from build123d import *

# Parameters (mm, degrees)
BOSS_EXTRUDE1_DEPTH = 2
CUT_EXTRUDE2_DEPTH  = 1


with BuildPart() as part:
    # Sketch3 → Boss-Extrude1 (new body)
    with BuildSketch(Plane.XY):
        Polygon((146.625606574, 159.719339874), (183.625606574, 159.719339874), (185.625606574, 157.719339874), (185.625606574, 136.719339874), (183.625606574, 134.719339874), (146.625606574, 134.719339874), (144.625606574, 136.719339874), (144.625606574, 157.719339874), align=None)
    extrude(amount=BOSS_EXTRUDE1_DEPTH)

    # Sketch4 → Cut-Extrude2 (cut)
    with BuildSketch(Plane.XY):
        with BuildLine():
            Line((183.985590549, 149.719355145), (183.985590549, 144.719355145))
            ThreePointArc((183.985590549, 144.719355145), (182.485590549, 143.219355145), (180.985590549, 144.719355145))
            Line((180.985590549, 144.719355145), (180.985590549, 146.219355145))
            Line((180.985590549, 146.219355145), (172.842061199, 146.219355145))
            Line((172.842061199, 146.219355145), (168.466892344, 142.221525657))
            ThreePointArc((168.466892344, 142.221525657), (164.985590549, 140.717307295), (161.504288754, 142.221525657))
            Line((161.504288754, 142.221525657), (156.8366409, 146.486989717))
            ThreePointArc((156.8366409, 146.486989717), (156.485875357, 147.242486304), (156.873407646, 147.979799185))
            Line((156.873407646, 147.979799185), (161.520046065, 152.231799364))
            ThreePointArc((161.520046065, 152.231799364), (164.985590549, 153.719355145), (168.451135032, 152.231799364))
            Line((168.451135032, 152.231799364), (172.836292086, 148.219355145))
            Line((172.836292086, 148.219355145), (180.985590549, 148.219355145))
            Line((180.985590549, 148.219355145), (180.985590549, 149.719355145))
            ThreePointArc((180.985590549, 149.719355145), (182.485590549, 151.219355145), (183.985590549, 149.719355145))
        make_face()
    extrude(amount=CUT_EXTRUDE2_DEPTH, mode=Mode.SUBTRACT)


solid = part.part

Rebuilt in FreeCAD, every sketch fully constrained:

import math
import FreeCAD as App
import Part
import Sketcher
Q = App.Units.Quantity

doc = App.newDocument("Part")
body = doc.addObject("PartDesign::Body", "Body")

# Sketch on XY plane
sketch1 = body.newObject("Sketcher::SketchObject", "Sketch")
sketch1.AttachmentSupport = (doc.getObject("XY_Plane"), [""])
sketch1.MapMode = "FlatFace"
sketch1.addGeometry(Part.LineSegment(App.Vector(183.6, 159.7, 0), App.Vector(146.6, 159.7, 0)), False)
sketch1.addGeometry(Part.LineSegment(App.Vector(146.6, 159.7, 0), App.Vector(144.6, 157.7, 0)), False)
sketch1.addGeometry(Part.LineSegment(App.Vector(144.6, 157.7, 0), App.Vector(144.6, 136.7, 0)), False)
sketch1.addGeometry(Part.LineSegment(App.Vector(144.6, 136.7, 0), App.Vector(146.6, 134.7, 0)), False)
sketch1.addGeometry(Part.LineSegment(App.Vector(146.6, 134.7, 0), App.Vector(183.6, 134.7, 0)), False)
sketch1.addGeometry(Part.LineSegment(App.Vector(183.6, 134.7, 0), App.Vector(185.6, 136.7, 0)), False)
sketch1.addGeometry(Part.LineSegment(App.Vector(185.6, 136.7, 0), App.Vector(185.6, 157.7, 0)), False)
sketch1.addGeometry(Part.LineSegment(App.Vector(185.6, 157.7, 0), App.Vector(183.6, 159.7, 0)), False)
sketch1.addConstraint(Sketcher.Constraint("Coincident", 0, 2, 1, 1))
sketch1.addConstraint(Sketcher.Constraint("Coincident", 1, 2, 2, 1))
sketch1.addConstraint(Sketcher.Constraint("Coincident", 2, 2, 3, 1))
sketch1.addConstraint(Sketcher.Constraint("Coincident", 3, 2, 4, 1))
sketch1.addConstraint(Sketcher.Constraint("Coincident", 4, 2, 5, 1))
sketch1.addConstraint(Sketcher.Constraint("Coincident", 5, 2, 6, 1))
sketch1.addConstraint(Sketcher.Constraint("Coincident", 6, 2, 7, 1))
sketch1.addConstraint(Sketcher.Constraint("Coincident", 7, 2, 0, 1))
sketch1.addConstraint(Sketcher.Constraint("Horizontal", 0))
sketch1.addConstraint(Sketcher.Constraint("Vertical", 2))
sketch1.addConstraint(Sketcher.Constraint("Horizontal", 4))
sketch1.addConstraint(Sketcher.Constraint("Vertical", 6))
sketch1.addConstraint(Sketcher.Constraint("Perpendicular", 1, 3))
sketch1.addConstraint(Sketcher.Constraint("Perpendicular", 3, 5))
sketch1.addConstraint(Sketcher.Constraint("Perpendicular", 5, 7))
sketch1.addConstraint(Sketcher.Constraint("Horizontal", 2, 2, 5, 2))
sketch1.addConstraint(Sketcher.Constraint("Horizontal", 1, 2, 6, 2))
sketch1.addConstraint(Sketcher.Constraint("Vertical", 0, 2, 3, 2))
sketch1.addConstraint(Sketcher.Constraint("Vertical", 4, 2, 7, 2))
sketch1.addConstraint(Sketcher.Constraint("DistanceX", 0, 2, 0, 1, Q("37 mm")))
sketch1.addConstraint(Sketcher.Constraint("DistanceY", 2, 2, 2, 1, Q("21 mm")))
sketch1.addConstraint(Sketcher.Constraint("DistanceX", 1, 2, 0, 2, Q("2 mm")))
sketch1.addConstraint(Sketcher.Constraint("DistanceY", -1, 1, 0, 2, Q("159.71934 mm")))
sketch1.addConstraint(Sketcher.Constraint("DistanceX", -1, 1, 0, 2, Q("146.625607 mm")))
pad1 = body.newObject("PartDesign::Pad", "Pad")
pad1.Profile = sketch1
pad1.Length = 2

# Sketch on XY plane
sketch2 = body.newObject("Sketcher::SketchObject", "Sketch001")
sketch2.AttachmentSupport = (doc.getObject("XY_Plane"), [""])
sketch2.MapMode = "FlatFace"
sketch2.addGeometry(Part.LineSegment(App.Vector(184, 144.7, 0), App.Vector(184, 149.7, 0)), False)
sketch2.addGeometry(Part.ArcOfCircle(Part.Circle(App.Vector(182.5, 149.7, 0), App.Vector(0, 0, 1), 1.5), math.radians(0), math.radians(180)), False)
sketch2.addGeometry(Part.LineSegment(App.Vector(181, 149.7, 0), App.Vector(181, 148.2, 0)), False)
sketch2.addGeometry(Part.LineSegment(App.Vector(181, 148.2, 0), App.Vector(172.8, 148.2, 0)), False)
sketch2.addGeometry(Part.LineSegment(App.Vector(172.8, 148.2, 0), App.Vector(168.5, 152.2, 0)), False)
sketch2.addGeometry(Part.ArcOfCircle(Part.Circle(App.Vector(165, 148.9, 0), App.Vector(0, 0, 1), 4.8), math.radians(44), math.radians(136)), False)
sketch2.addGeometry(Part.LineSegment(App.Vector(161.5, 152.2, 0), App.Vector(156.9, 148, 0)), False)
sketch2.addGeometry(Part.ArcOfCircle(Part.Circle(App.Vector(157.4, 147.2, 0), App.Vector(0, 0, 1), 0.9), math.radians(126), math.radians(231)), False)
sketch2.addGeometry(Part.LineSegment(App.Vector(156.8, 146.5, 0), App.Vector(161.5, 142.2, 0)), False)
sketch2.addGeometry(Part.ArcOfCircle(Part.Circle(App.Vector(165, 145.5, 0), App.Vector(0, 0, 1), 4.8), math.radians(-137), math.radians(-43)), False)
sketch2.addGeometry(Part.LineSegment(App.Vector(168.5, 142.2, 0), App.Vector(172.8, 146.2, 0)), False)
sketch2.addGeometry(Part.LineSegment(App.Vector(172.8, 146.2, 0), App.Vector(181, 146.2, 0)), False)
sketch2.addGeometry(Part.LineSegment(App.Vector(181, 146.2, 0), App.Vector(181, 144.7, 0)), False)
sketch2.addGeometry(Part.ArcOfCircle(Part.Circle(App.Vector(182.5, 144.7, 0), App.Vector(0, 0, 1), 1.5), math.radians(180), math.radians(360)), False)
sketch2.addConstraint(Sketcher.Constraint("Tangent", 0, 2, 1, 1))
sketch2.addConstraint(Sketcher.Constraint("Tangent", 1, 2, 2, 1))
sketch2.addConstraint(Sketcher.Constraint("Coincident", 2, 2, 3, 1))
sketch2.addConstraint(Sketcher.Constraint("Coincident", 3, 2, 4, 1))
sketch2.addConstraint(Sketcher.Constraint("Coincident", 4, 2, 5, 1))
sketch2.addConstraint(Sketcher.Constraint("Coincident", 5, 2, 6, 1))
sketch2.addConstraint(Sketcher.Constraint("Coincident", 6, 2, 7, 1))
sketch2.addConstraint(Sketcher.Constraint("Coincident", 7, 2, 8, 1))
sketch2.addConstraint(Sketcher.Constraint("Coincident", 8, 2, 9, 1))
sketch2.addConstraint(Sketcher.Constraint("Coincident", 9, 2, 10, 1))
sketch2.addConstraint(Sketcher.Constraint("Coincident", 10, 2, 11, 1))
sketch2.addConstraint(Sketcher.Constraint("Coincident", 11, 2, 12, 1))
sketch2.addConstraint(Sketcher.Constraint("Tangent", 12, 2, 13, 1))
sketch2.addConstraint(Sketcher.Constraint("Tangent", 13, 2, 0, 1))
sketch2.addConstraint(Sketcher.Constraint("Vertical", 0))
sketch2.addConstraint(Sketcher.Constraint("Vertical", 2))
sketch2.addConstraint(Sketcher.Constraint("Horizontal", 3))
sketch2.addConstraint(Sketcher.Constraint("Horizontal", 11))
sketch2.addConstraint(Sketcher.Constraint("Vertical", 12))
sketch2.addConstraint(Sketcher.Constraint("Equal", 5, 9))
sketch2.addConstraint(Sketcher.Constraint("Equal", 1, 13))
sketch2.addConstraint(Sketcher.Constraint("Horizontal", 4, 2, 5, 2))
sketch2.addConstraint(Sketcher.Constraint("Horizontal", 8, 2, 9, 2))
sketch2.addConstraint(Sketcher.Constraint("Vertical", 5, 3, 9, 3))
sketch2.addConstraint(Sketcher.Constraint("Equal", 2, 12))
sketch2.addConstraint(Sketcher.Constraint("Radius", 1, Q("1.5 mm")))
sketch2.addConstraint(Sketcher.Constraint("DistanceY", 0, 1, 0, 2, Q("5 mm")))
sketch2.addConstraint(Sketcher.Constraint("DistanceY", 2, 2, 2, 1, Q("1.5 mm")))
sketch2.addConstraint(Sketcher.Constraint("DistanceX", 5, 3, 0, 2, Q("19 mm")))
sketch2.addConstraint(Sketcher.Constraint("Radius", 5, Q("4.780601 mm")))
sketch2.addConstraint(Sketcher.Constraint("DistanceY", 7, 3, 1, 3, Q("2.5 mm")))
sketch2.addConstraint(Sketcher.Constraint("Radius", 7, Q("0.93946 mm")))
sketch2.addConstraint(Sketcher.Constraint("DistanceX", 3, 2, 3, 1, Q("8.149298 mm")))
sketch2.addConstraint(Sketcher.Constraint("DistanceY", 6, 2, 5, 2, Q("4.252 mm")))
sketch2.addConstraint(Sketcher.Constraint("DistanceX", 11, 1, 11, 2, Q("8.143529 mm")))
sketch2.addConstraint(Sketcher.Constraint("DistanceY", -1, 1, 4, 2, Q("152.231799 mm")))
sketch2.addConstraint(Sketcher.Constraint("DistanceY", 5, 3, 1, 3, Q("0.780601 mm")))
sketch2.addConstraint(Sketcher.Constraint("DistanceX", 8, 2, 9, 3, Q("3.481302 mm")))
sketch2.addConstraint(Sketcher.Constraint("DistanceX", -1, 1, 1, 3, Q("182.485591 mm")))
sketch2.addConstraint(Sketcher.Constraint("DistanceX", -1, 1, 7, 3, Q("157.42505 mm")))
sketch2.addConstraint(Sketcher.Constraint("DistanceY", -1, 1, 9, 3, Q("145.497908 mm")))
sketch2.addConstraint(Sketcher.Constraint("DistanceX", -1, 1, 7, 2, Q("156.836641 mm")))
sketch2.addConstraint(Sketcher.Constraint("DistanceY", -1, 1, 7, 2, Q("146.48699 mm")))
pocket1 = body.newObject("PartDesign::Pocket", "Pocket")
pocket1.Profile = sketch2
pocket1.Length = 1
pocket1.Reversed = True

doc.recompute()
